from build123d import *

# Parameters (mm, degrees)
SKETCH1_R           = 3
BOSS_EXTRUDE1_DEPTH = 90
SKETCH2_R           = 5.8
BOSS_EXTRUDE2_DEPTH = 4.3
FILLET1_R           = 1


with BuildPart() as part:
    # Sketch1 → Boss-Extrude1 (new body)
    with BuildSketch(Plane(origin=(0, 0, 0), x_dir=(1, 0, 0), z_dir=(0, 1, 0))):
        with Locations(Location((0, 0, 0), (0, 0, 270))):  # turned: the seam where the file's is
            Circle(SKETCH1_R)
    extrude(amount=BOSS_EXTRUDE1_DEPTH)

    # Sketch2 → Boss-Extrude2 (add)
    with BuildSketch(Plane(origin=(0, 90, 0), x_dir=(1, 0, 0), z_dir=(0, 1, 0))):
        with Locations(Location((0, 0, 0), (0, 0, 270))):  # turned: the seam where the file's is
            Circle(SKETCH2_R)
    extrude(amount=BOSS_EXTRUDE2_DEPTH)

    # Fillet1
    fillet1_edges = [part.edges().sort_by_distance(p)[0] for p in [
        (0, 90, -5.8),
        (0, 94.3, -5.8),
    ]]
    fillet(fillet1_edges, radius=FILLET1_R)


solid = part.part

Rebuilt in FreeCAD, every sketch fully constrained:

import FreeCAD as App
import Part
import Sketcher
from FreeCAD import Vector


def edges_at(feature, points):
    """Names of the edges that pass closest to the given points."""
    edges = feature.Shape.Edges
    near = lambda p: min(range(len(edges)), key=lambda i: edges[i].distToShape(Part.Vertex(*p))[0])
    return sorted({f"Edge{near(p) + 1}" for p in points})

doc = App.newDocument("Part")
body = doc.addObject("PartDesign::Body", "Body")

# Sketch on XZ plane
sketch1 = body.newObject("Sketcher::SketchObject", "Sketch")
sketch1.AttachmentSupport = (doc.getObject("XZ_Plane"), [""])
sketch1.MapMode = "FlatFace"
sketch1.addGeometry(Part.Circle(Vector(0, 0, 0), Vector(0, 0, 1), 3), False)
sketch1.addConstraint([
    Sketcher.Constraint("Coincident", 0, 3, -1, 1),
    Sketcher.Constraint("Diameter", 0, 6.0),
])
pad1 = body.newObject("PartDesign::Pad", "Pad")
pad1.Profile = sketch1
pad1.Length = 90
pad1.Reversed = True

# Sketch on XZ plane
sketch2 = body.newObject("Sketcher::SketchObject", "Sketch001")
sketch2.AttachmentSupport = (doc.getObject("XZ_Plane"), [""])
sketch2.MapMode = "FlatFace"
sketch2.AttachmentOffset = App.Placement(Vector(0, 0, -90), App.Rotation())
sketch2.addGeometry(Part.Circle(Vector(0, 0, 0), Vector(0, 0, 1), 5.8), False)
sketch2.addConstraint([
    Sketcher.Constraint("Coincident", 0, 3, -1, 1),
    Sketcher.Constraint("Diameter", 0, 11.6),
])
pad2 = body.newObject("PartDesign::Pad", "Pad001")
pad2.Profile = sketch2
pad2.Length = 4.3
pad2.Reversed = True
doc.recompute()

fillet = body.newObject("PartDesign::Fillet", "Fillet")
fillet.Base = (pad2, edges_at(pad2, [(0, 90, -5.8), (0, 94.3, -5.8)]))
fillet.Radius = 1

doc.recompute()
